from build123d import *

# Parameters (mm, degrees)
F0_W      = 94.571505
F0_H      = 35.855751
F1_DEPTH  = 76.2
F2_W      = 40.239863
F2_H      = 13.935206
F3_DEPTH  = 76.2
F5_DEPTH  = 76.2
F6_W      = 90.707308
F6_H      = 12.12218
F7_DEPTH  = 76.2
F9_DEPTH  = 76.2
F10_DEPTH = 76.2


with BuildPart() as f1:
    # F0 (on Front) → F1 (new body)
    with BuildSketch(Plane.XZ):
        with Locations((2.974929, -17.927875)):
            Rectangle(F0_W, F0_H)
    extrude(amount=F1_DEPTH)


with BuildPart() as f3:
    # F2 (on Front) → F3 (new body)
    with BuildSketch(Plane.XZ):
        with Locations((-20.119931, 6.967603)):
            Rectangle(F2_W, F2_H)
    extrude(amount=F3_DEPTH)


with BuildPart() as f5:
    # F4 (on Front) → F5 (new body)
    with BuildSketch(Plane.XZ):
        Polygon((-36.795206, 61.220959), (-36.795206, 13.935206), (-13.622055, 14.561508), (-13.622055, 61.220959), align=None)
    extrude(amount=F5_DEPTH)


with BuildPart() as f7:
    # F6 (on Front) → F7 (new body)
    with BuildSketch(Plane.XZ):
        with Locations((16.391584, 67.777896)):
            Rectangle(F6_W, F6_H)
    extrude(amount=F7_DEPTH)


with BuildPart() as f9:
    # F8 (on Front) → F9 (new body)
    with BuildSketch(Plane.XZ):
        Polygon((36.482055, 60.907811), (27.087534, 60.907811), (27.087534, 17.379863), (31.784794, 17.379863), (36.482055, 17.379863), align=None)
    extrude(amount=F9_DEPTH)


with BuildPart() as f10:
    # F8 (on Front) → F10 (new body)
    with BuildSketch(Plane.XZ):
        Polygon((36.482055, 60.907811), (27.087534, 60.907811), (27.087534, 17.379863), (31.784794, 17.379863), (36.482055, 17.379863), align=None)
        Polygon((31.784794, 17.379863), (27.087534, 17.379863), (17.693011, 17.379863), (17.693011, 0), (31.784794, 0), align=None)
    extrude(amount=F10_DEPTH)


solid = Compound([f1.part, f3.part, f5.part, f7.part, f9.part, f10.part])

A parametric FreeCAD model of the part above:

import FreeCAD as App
import Part
import Sketcher
from FreeCAD import Vector
Q = App.Units.Quantity


def add_polygon(sketch, points):
    """Adds a closed chain of lines whose ends are joined by coincident constraints."""
    first, n = sketch.GeometryCount, len(points)
    for a, b in zip(points, points[1:] + points[:1]):
        sketch.addGeometry(Part.LineSegment(App.Vector(*a, 0), App.Vector(*b, 0)), False)
    for i in range(n):
        sketch.addConstraint(Sketcher.Constraint("Coincident", first + i, 2, first + (i + 1) % n, 1))

doc = App.newDocument("Part")
body = doc.addObject("PartDesign::Body", "Body")

sketch1 = body.newObject("Sketcher::SketchObject", "Sketch")
sketch1.AttachmentSupport = (doc.getObject("XZ_Plane"), [""])
sketch1.MapMode = "FlatFace"
add_polygon(sketch1, [(-44.310823, 0), (-44.310823, -35.85575), (50.260681, -35.85575), (50.260681, 0)])
sketch1.addConstraint([
    Sketcher.Constraint("Vertical", 0),
    Sketcher.Constraint("Horizontal", 1),
    Sketcher.Constraint("Vertical", 2),
    Sketcher.Constraint("Horizontal", 3),
    Sketcher.Constraint("PointOnObject", 2, 2, -1),
    Sketcher.Constraint("DistanceY", 0, 2, 0, 1, 35.855751),
    Sketcher.Constraint("DistanceX", 1, 1, 1, 2, 94.571505),
    Sketcher.Constraint("DistanceX", -1, 1, 1, 2, 50.260681),
])
pad1 = body.newObject("PartDesign::Pad", "Pad")
pad1.Profile = sketch1
pad1.Length = Q("3 in")
body2 = doc.addObject("PartDesign::Body", "Body001")

sketch2 = body2.newObject("Sketcher::SketchObject", "Sketch001")
sketch2.AttachmentSupport = (doc.getObject("XZ_Plane001"), [""])
sketch2.MapMode = "FlatFace"
add_polygon(sketch2, [(-40.239863, 13.935206), (-40.239863, 0), (0, 0), (0, 13.935206)])
sketch2.addConstraint([
    Sketcher.Constraint("Vertical", 0),
    Sketcher.Constraint("Horizontal", 1),
    Sketcher.Constraint("Vertical", 2),
    Sketcher.Constraint("Horizontal", 3),
    Sketcher.Constraint("Coincident", 1, 2, -1, 1),
    Sketcher.Constraint("DistanceX", 1, 1, 1, 2, 40.239863),
    Sketcher.Constraint("DistanceY", 0, 2, 0, 1, 13.935206),
])
pad2 = body2.newObject("PartDesign::Pad", "Pad001")
pad2.Profile = sketch2
pad2.Length = Q("3 in")
body3 = doc.addObject("PartDesign::Body", "Body002")

sketch3 = body3.newObject("Sketcher::SketchObject", "Sketch002")
sketch3.AttachmentSupport = (doc.getObject("XZ_Plane002"), [""])
sketch3.MapMode = "FlatFace"
add_polygon(sketch3, [(-36.795206, 61.220959), (-36.795206, 13.935206), (-13.622055, 14.561508), (-13.622055, 61.220959)])
sketch3.addConstraint([
    Sketcher.Constraint("Vertical", 0),
    Sketcher.Constraint("Vertical", 2),
    Sketcher.Constraint("Horizontal", 3),
    Sketcher.Constraint("DistanceX", 3, 2, 3, 1, 23.173151),
    Sketcher.Constraint("DistanceY", 2, 1, 2, 2, 46.659451),
    Sketcher.Constraint("DistanceY", 0, 2, 1, 2, 0.626302),
    Sketcher.Constraint("DistanceY", -1, 1, 2, 2, 61.220959),
    Sketcher.Constraint("DistanceX", 0, 2, -1, 1, 36.795206),
])
pad3 = body3.newObject("PartDesign::Pad", "Pad002")
pad3.Profile = sketch3
pad3.Length = Q("3 in")
body4 = doc.addObject("PartDesign::Body", "Body003")

sketch4 = body4.newObject("Sketcher::SketchObject", "Sketch003")
sketch4.AttachmentSupport = (doc.getObject("XZ_Plane003"), [""])
sketch4.MapMode = "FlatFace"
add_polygon(sketch4, [(-28.96207, 73.838986), (-28.96207, 61.716806), (61.745238, 61.716806), (61.745238, 73.838986)])
sketch4.addConstraint([
    Sketcher.Constraint("Vertical", 0),
    Sketcher.Constraint("Horizontal", 1),
    Sketcher.Constraint("Vertical", 2),
    Sketcher.Constraint("Horizontal", 3),
    Sketcher.Constraint("DistanceY", 0, 2, 0, 1, 12.12218),
    Sketcher.Constraint("DistanceX", 1, 1, 1, 2, 90.707308),
    Sketcher.Constraint("DistanceX", 0, 2, -1, 1, 28.96207),
    Sketcher.Constraint("DistanceY", -1, 1, 0, 2, 61.716806),
])
pad4 = body4.newObject("PartDesign::Pad", "Pad003")
pad4.Profile = sketch4
pad4.Length = Q("3 in")
body5 = doc.addObject("PartDesign::Body", "Body004")

sketch5 = body5.newObject("Sketcher::SketchObject", "Sketch004")
sketch5.AttachmentSupport = (doc.getObject("XZ_Plane004"), [""])
sketch5.MapMode = "FlatFace"
add_polygon(sketch5, [(36.482055, 60.907811), (27.087534, 60.907811), (27.087534, 17.379863), (36.482055, 17.379863)])
sketch5.addConstraint([
    Sketcher.Constraint("Horizontal", 0),
    Sketcher.Constraint("Vertical", 1),
    Sketcher.Constraint("Horizontal", 2),
    Sketcher.Constraint("Vertical", 3),
    Sketcher.Constraint("DistanceX", 0, 2, 0, 1, 9.394521),
    Sketcher.Constraint("DistanceY", 1, 2, 1, 1, 43.527948),
    Sketcher.Constraint("DistanceY", -1, 1, 0, 2, 60.907811),
    Sketcher.Constraint("DistanceX", -1, 1, 0, 2, 27.087534),
])
pad5 = body5.newObject("PartDesign::Pad", "Pad004")
pad5.Profile = sketch5
pad5.Length = Q("3 in")
body6 = doc.addObject("PartDesign::Body", "Body005")

sketch6 = body6.newObject("Sketcher::SketchObject", "Sketch005")
sketch6.AttachmentSupport = (doc.getObject("XZ_Plane005"), [""])
sketch6.MapMode = "FlatFace"
add_polygon(sketch6, [(36.482055, 60.907811), (27.087534, 60.907811), (27.087534, 17.379863), (17.693011, 17.379863), (17.693011, 0), (31.784794, 0), (31.784794, 17.379863), (36.482055, 17.379863)])
sketch6.addConstraint([
    Sketcher.Constraint("Horizontal", 0),
    Sketcher.Constraint("Vertical", 1),
    Sketcher.Constraint("Horizontal", 2),
    Sketcher.Constraint("Vertical", 3),
    Sketcher.Constraint("Horizontal", 4),
    Sketcher.Constraint("Vertical", 5),
    Sketcher.Constraint("Horizontal", 6),
    Sketcher.Constraint("Vertical", 7),
    Sketcher.Constraint("PointOnObject", 3, 2, -1),
    Sketcher.Constraint("Horizontal", 2, 2, 5, 2),
    Sketcher.Constraint("DistanceX", 0, 2, 0, 1, 9.394521),
    Sketcher.Constraint("DistanceX", 6, 1, 6, 2, 4.697261),
    Sketcher.Constraint("DistanceY", 1, 2, 1, 1, 43.527948),
    Sketcher.Constraint("DistanceX", 2, 2, 2, 1, 9.394523),
    Sketcher.Constraint("DistanceY", 3, 2, 3, 1, 17.379863),
    Sketcher.Constraint("DistanceX", -1, 1, 2, 2, 17.693011),
])
pad6 = body6.newObject("PartDesign::Pad", "Pad005")
pad6.Profile = sketch6
pad6.Length = Q("3 in")

doc.recompute()
